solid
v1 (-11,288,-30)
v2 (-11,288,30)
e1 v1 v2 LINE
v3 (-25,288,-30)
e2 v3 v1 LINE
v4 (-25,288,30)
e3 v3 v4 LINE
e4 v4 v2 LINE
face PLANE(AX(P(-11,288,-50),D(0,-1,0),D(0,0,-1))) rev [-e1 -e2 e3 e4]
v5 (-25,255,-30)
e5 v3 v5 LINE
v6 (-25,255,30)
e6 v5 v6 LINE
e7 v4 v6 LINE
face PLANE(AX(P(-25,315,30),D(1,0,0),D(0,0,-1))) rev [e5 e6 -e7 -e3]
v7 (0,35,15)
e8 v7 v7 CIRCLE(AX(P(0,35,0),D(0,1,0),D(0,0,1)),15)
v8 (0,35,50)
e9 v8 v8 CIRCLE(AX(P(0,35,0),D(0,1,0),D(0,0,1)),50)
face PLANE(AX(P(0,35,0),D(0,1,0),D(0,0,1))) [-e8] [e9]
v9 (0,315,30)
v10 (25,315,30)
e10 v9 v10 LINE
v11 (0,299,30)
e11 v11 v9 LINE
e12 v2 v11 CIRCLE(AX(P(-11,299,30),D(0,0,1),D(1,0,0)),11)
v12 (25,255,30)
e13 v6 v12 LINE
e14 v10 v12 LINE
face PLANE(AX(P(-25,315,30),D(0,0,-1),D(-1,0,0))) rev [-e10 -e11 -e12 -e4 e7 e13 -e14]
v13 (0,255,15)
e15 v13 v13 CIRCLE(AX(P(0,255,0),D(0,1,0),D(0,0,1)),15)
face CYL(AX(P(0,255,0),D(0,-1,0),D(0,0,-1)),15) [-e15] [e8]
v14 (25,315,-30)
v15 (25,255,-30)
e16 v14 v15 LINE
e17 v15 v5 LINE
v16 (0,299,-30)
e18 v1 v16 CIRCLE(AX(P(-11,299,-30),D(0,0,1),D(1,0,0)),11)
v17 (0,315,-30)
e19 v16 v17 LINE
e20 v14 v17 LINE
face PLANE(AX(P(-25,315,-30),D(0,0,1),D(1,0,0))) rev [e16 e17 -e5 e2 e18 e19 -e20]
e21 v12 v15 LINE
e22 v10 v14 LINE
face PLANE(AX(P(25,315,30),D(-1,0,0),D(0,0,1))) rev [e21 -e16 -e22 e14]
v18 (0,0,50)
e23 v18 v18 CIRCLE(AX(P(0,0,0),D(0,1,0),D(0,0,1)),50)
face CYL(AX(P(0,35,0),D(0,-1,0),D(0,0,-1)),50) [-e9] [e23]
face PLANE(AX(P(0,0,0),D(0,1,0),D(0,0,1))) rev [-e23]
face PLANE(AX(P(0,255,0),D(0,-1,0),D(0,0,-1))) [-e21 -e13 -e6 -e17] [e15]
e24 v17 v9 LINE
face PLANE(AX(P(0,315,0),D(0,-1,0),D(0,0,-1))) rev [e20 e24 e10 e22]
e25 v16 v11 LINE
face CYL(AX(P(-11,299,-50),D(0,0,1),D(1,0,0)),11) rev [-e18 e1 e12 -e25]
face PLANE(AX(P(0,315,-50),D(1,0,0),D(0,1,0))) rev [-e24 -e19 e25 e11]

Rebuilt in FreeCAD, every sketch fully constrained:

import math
import FreeCAD as App
import Part
import Sketcher

V = App.Vector

doc = App.newDocument("Part")
body = doc.addObject("PartDesign::Body", "Body")

# Sketch on XZ plane
sketch1 = body.newObject("Sketcher::SketchObject", "Sketch")
sketch1.AttachmentSupport = (doc.getObject("XZ_Plane"), [""])
sketch1.MapMode = "FlatFace"
sketch1.addGeometry(Part.Circle(V(0, 0, 0), V(0, 0, 1), 50), False)
sketch1.addConstraint([
    Sketcher.Constraint("Coincident", 0, 3, -1, 1),
    Sketcher.Constraint("Diameter", 0, 100.0),
])
pad1 = body.newObject("PartDesign::Pad", "Pad")
pad1.Profile = sketch1
pad1.Length = 35
pad1.Reversed = True

# Sketch on XZ plane
sketch2 = body.newObject("Sketcher::SketchObject", "Sketch001")
sketch2.AttachmentSupport = (doc.getObject("XZ_Plane"), [""])
sketch2.MapMode = "FlatFace"
sketch2.AttachmentOffset = App.Placement(V(0, 0, -35), App.Rotation())
sketch2.addGeometry(Part.Circle(V(0, 0, 0), V(0, 0, 1), 15), False)
sketch2.addConstraint([
    Sketcher.Constraint("Coincident", 0, 3, -1, 1),
    Sketcher.Constraint("Diameter", 0, 30.0),
])
pad2 = body.newObject("PartDesign::Pad", "Pad001")
pad2.Profile = sketch2
pad2.Length = 220
pad2.Reversed = True

# Sketch on XZ plane
sketch3 = body.newObject("Sketcher::SketchObject", "Sketch002")
sketch3.AttachmentSupport = (doc.getObject("XZ_Plane"), [""])
sketch3.MapMode = "FlatFace"
sketch3.AttachmentOffset = App.Placement(V(0, 0, -255), App.Rotation())
sketch3.addGeometry([
    Part.LineSegment(V(-25, -30, 0), V(-25, 30, 0)),
    Part.LineSegment(V(-25, 30, 0), V(25, 30, 0)),
    Part.LineSegment(V(25, 30, 0), V(25, -30, 0)),
    Part.LineSegment(V(25, -30, 0), V(-25, -30, 0)),
], False)
sketch3.addConstraint([
    Sketcher.Constraint("Coincident", 0, 2, 1, 1),
    Sketcher.Constraint("Coincident", 1, 2, 2, 1),
    Sketcher.Constraint("Coincident", 2, 2, 3, 1),
    Sketcher.Constraint("Coincident", 3, 2, 0, 1),
    Sketcher.Constraint("Vertical", 0),
    Sketcher.Constraint("Horizontal", 1),
    Sketcher.Constraint("Vertical", 2),
    Sketcher.Constraint("Horizontal", 3),
    Sketcher.Constraint("Symmetric", 0, 2, 2, 2, -1, 1),
    Sketcher.Constraint("DistanceX", 1, 1, 1, 2, 50.0),
    Sketcher.Constraint("DistanceY", 0, 1, 0, 2, 60.0),
])
pad3 = body.newObject("PartDesign::Pad", "Pad002")
pad3.Profile = sketch3
pad3.Length = 60
pad3.Reversed = True

# Sketch on XY plane
sketch4 = body.newObject("Sketcher::SketchObject", "Sketch003")
sketch4.AttachmentSupport = (doc.getObject("XY_Plane"), [""])
sketch4.MapMode = "FlatFace"
sketch4.AttachmentOffset = App.Placement(V(0, 0, 30), App.Rotation())
sketch4.addGeometry([
    Part.LineSegment(V(0, 299, 0), V(0, 315, 0)),  # 0
    Part.LineSegment(V(0, 315, 0), V(-25, 315, 0)),  # 1
    Part.LineSegment(V(-25, 315, 0), V(-25, 288, 0)),  # 2
    Part.LineSegment(V(-25, 288, 0), V(-11, 288, 0)),  # 3
    Part.ArcOfCircle(Part.Circle(V(-11, 299, 0), V(0, 0, 1), 11), math.radians(-90), math.radians(0)),  # 4
], False)
sketch4.addConstraint([
    Sketcher.Constraint("Coincident", 0, 2, 1, 1),
    Sketcher.Constraint("Coincident", 1, 2, 2, 1),
    Sketcher.Constraint("Coincident", 2, 2, 3, 1),
    Sketcher.Constraint("Tangent", 3, 2, 4, 1),
    Sketcher.Constraint("Tangent", 4, 2, 0, 1),
    Sketcher.Constraint("Vertical", 0),
    Sketcher.Constraint("Horizontal", 1),
    Sketcher.Constraint("Vertical", 2),
    Sketcher.Constraint("Horizontal", 3),
    Sketcher.Constraint("PointOnObject", 0, 2, -2),
    Sketcher.Constraint("Radius", 4, 11.0),
    Sketcher.Constraint("DistanceX", 1, 2, 1, 1, 25.0),
    Sketcher.Constraint("DistanceY", 0, 1, 0, 2, 16.0),
    Sketcher.Constraint("DistanceY", -1, 1, 4, 3, 299.0),
])
pocket1 = body.newObject("PartDesign::Pocket", "Pocket")
pocket1.Profile = sketch4
pocket1.Type = "ThroughAll"

doc.recompute()
